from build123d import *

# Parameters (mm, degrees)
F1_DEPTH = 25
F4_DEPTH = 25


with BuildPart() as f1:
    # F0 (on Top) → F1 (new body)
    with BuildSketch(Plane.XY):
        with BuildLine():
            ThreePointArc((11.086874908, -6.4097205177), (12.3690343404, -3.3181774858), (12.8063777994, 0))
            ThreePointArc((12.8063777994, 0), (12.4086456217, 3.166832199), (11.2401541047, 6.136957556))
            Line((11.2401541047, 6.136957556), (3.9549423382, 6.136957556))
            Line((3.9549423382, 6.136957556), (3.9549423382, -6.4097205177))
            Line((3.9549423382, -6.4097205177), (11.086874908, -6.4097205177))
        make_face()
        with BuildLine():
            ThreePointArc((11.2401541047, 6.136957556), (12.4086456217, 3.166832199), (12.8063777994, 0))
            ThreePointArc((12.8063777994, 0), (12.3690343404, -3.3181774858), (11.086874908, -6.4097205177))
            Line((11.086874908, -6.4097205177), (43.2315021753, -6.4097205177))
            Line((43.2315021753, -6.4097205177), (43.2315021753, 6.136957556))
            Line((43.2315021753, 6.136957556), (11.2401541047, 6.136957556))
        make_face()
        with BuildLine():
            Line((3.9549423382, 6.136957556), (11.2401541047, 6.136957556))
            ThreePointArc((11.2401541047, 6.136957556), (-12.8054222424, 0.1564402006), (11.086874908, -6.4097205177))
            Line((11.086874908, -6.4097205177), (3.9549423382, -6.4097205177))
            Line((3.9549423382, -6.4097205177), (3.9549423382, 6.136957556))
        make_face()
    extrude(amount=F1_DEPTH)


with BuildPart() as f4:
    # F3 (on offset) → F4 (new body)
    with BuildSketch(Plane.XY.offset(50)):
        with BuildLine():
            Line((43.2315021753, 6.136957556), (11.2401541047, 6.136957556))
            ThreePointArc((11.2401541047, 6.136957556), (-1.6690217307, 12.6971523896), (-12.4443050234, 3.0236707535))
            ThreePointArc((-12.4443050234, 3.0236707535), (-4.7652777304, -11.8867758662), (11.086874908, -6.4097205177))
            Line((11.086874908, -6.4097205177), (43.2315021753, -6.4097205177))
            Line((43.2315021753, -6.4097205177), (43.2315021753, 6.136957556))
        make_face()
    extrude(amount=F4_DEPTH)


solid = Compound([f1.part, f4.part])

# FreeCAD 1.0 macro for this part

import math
import FreeCAD as App
import Part
import Sketcher

V = App.Vector

doc = App.newDocument("Part")
body = doc.addObject("PartDesign::Body", "Body")

# Sketch on XY plane
sketch1 = body.newObject("Sketcher::SketchObject", "Sketch")
sketch1.AttachmentSupport = (doc.getObject("XY_Plane"), [""])
sketch1.MapMode = "FlatFace"
sketch1.addGeometry([
    Part.LineSegment(V(11, -6, 0), V(43, -6, 0)),
    Part.LineSegment(V(43, -6, 0), V(43, 6, 0)),
    Part.LineSegment(V(43, 6, 0), V(11, 6, 0)),
    Part.ArcOfCircle(Part.Circle(V(0, 0, 0), V(0, 0, 1), 13), math.radians(29), math.radians(330)),
], False)
sketch1.addConstraint([
    Sketcher.Constraint("Coincident", 0, 2, 1, 1),
    Sketcher.Constraint("Coincident", 1, 2, 2, 1),
    Sketcher.Constraint("Coincident", 2, 2, 3, 1),
    Sketcher.Constraint("Coincident", 3, 2, 0, 1),
    Sketcher.Constraint("Horizontal", 0),
    Sketcher.Constraint("Vertical", 1),
    Sketcher.Constraint("Horizontal", 2),
    Sketcher.Constraint("Coincident", 3, 3, -1, 1),
    Sketcher.Constraint("Radius", 3, 12.806378),
    Sketcher.Constraint("DistanceX", 2, 2, 2, 1, 31.991348),
    Sketcher.Constraint("DistanceY", 1, 1, 1, 2, 12.546678),
    Sketcher.Constraint("DistanceX", 0, 1, 0, 2, 32.144627),
])
pad1 = body.newObject("PartDesign::Pad", "Pad")
pad1.Profile = sketch1
pad1.Length = 25
body2 = doc.addObject("PartDesign::Body", "Body001")

# Sketch on XY plane
sketch2 = body2.newObject("Sketcher::SketchObject", "Sketch001")
sketch2.AttachmentSupport = (doc.getObject("XY_Plane001"), [""])
sketch2.MapMode = "FlatFace"
sketch2.AttachmentOffset = App.Placement(V(0, 0, 50), App.Rotation())
sketch2.addGeometry([
    Part.LineSegment(V(43, 6, 0), V(11, 6, 0)),  # 0
    Part.ArcOfCircle(Part.Circle(V(0, 0, 0), V(0, 0, 1), 13), math.radians(29), math.radians(166)),  # 1
    Part.ArcOfCircle(Part.Circle(V(0, 0, 0), V(0, 0, 1), 13), math.radians(166), math.radians(330)),  # 2
    Part.LineSegment(V(11, -6, 0), V(43, -6, 0)),  # 3
    Part.LineSegment(V(43, -6, 0), V(43, 6, 0)),  # 4
], False)
sketch2.addConstraint([
    Sketcher.Constraint("Coincident", 0, 2, 1, 1),
    Sketcher.Constraint("Tangent", 1, 2, 2, 1),
    Sketcher.Constraint("Coincident", 2, 2, 3, 1),
    Sketcher.Constraint("Coincident", 3, 2, 4, 1),
    Sketcher.Constraint("Coincident", 4, 2, 0, 1),
    Sketcher.Constraint("Horizontal", 0),
    Sketcher.Constraint("Horizontal", 3),
    Sketcher.Constraint("Vertical", 4),
    Sketcher.Constraint("Coincident", 1, 3, -1, 1),
    Sketcher.Constraint("Equal", 1, 2),
    Sketcher.Constraint("Radius", 1, 12.806378),
    Sketcher.Constraint("DistanceX", 0, 2, 0, 1, 31.991348),
    Sketcher.Constraint("DistanceY", 4, 1, 4, 2, 12.546678),
    Sketcher.Constraint("DistanceX", 3, 1, 3, 2, 32.144627),
    Sketcher.Constraint("DistanceY", -1, 1, 1, 2, 3.023671),
])
pad2 = body2.newObject("PartDesign::Pad", "Pad001")
pad2.Profile = sketch2
pad2.Length = 25

doc.recompute()
